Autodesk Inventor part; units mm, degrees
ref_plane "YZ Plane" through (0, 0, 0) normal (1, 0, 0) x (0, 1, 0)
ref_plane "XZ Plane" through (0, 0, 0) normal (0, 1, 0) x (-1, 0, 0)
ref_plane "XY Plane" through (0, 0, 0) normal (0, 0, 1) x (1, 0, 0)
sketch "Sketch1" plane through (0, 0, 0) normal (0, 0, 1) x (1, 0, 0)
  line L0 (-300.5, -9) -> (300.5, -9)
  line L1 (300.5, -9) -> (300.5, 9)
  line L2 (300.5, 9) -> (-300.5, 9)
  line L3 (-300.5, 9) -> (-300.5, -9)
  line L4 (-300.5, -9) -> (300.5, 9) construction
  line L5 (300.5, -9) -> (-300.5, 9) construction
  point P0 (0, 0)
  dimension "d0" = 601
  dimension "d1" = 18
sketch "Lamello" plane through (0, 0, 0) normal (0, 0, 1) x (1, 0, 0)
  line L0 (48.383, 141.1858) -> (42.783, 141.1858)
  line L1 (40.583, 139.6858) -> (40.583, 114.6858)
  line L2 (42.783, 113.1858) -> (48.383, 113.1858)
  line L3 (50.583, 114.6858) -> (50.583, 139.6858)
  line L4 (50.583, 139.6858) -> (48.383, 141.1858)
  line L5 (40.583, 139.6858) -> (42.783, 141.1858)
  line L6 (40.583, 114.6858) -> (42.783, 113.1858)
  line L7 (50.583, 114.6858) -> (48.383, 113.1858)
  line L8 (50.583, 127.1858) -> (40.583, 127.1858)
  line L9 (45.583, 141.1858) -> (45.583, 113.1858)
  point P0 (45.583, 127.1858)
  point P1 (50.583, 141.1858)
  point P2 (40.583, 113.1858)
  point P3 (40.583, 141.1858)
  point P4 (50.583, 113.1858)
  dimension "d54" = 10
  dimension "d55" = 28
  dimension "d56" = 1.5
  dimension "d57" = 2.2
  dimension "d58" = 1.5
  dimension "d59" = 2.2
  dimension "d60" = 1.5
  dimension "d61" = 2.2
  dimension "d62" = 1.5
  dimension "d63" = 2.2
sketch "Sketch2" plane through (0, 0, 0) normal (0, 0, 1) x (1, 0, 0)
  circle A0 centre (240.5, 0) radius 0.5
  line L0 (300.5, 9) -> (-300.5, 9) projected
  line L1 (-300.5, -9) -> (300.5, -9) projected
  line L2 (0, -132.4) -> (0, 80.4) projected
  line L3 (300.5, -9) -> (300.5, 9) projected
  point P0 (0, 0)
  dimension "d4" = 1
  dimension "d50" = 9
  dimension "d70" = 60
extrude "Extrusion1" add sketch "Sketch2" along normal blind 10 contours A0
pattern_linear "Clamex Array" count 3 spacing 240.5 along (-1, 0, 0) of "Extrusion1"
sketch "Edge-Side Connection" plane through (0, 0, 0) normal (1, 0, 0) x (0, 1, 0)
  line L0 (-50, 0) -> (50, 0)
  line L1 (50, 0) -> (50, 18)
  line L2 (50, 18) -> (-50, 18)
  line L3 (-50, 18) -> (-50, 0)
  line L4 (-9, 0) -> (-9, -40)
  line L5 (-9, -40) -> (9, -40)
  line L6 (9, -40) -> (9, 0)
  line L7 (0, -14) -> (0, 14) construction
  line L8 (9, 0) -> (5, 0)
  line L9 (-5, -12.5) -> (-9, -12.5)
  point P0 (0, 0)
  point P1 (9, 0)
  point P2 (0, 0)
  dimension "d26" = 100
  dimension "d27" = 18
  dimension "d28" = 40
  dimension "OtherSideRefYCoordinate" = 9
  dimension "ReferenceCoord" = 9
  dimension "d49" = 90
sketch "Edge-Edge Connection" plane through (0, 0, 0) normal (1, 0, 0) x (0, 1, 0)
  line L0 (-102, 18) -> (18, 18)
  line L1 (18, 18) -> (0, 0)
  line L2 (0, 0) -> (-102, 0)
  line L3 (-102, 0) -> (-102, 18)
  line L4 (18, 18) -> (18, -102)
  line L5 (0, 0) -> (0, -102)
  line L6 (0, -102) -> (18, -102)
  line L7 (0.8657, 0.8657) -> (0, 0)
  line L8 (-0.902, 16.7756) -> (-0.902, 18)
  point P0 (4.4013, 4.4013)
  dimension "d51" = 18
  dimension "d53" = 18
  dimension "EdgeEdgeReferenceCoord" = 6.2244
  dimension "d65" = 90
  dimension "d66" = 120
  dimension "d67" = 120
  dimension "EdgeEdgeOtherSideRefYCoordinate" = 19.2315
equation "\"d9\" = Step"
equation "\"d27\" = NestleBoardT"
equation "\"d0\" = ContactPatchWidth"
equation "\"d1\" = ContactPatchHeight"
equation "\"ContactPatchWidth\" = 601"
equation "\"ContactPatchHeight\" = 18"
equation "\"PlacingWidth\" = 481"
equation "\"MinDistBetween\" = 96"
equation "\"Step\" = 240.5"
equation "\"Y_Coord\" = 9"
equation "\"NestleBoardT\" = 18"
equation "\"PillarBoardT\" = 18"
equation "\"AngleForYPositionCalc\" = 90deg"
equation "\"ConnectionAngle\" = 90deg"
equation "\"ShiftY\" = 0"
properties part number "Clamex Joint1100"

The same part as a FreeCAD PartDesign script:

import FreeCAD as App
import Part
import Sketcher

V = App.Vector

doc = App.newDocument("Part")
params = doc.addObject("Spreadsheet::Sheet", "Params")
for row, (alias, value) in enumerate([
    ("sketch1_diameter", "1 mm"),
    ("pad1_length", "10 mm"),
    ("linearpattern_pitch", "240.5 mm"),
], start=1):
    params.set(f"A{row}", alias)
    params.set(f"B{row}", "=" + value)
    params.setAlias(f"B{row}", alias)

body = doc.addObject("PartDesign::Body", "Body")
body.AllowCompound = True

# Sketch on XY plane
sketch1 = body.newObject("Sketcher::SketchObject", "Sketch")
sketch1.AttachmentSupport = (doc.getObject("XY_Plane"), [""])
sketch1.MapMode = "FlatFace"
sketch1.addGeometry(Part.Circle(V(240.5, 0, 0), V(0, 0, 1), 0.5), False)
sketch1.addConstraint(Sketcher.Constraint("PointOnObject", 0, 3, -1))
sketch1.addConstraint(Sketcher.Constraint("Diameter", 0, 1.0))
sketch1.addConstraint(Sketcher.Constraint("DistanceX", -1, 1, 0, 3, 240.5))
sketch1.setExpression("Constraints[1]", "Params.sketch1_diameter")
pad1 = body.newObject("PartDesign::Pad", "Pad")
pad1.Profile = sketch1
pad1.setExpression("Length", "Params.pad1_length")
doc.recompute()

linearpattern = body.newObject("PartDesign::LinearPattern", "LinearPattern")
linearpattern.Originals = [pad1]
linearpattern.Direction = (doc.getObject("X_Axis"), [""])
linearpattern.Mode = "offset"
linearpattern.setExpression("Offset", "Params.linearpattern_pitch")
linearpattern.Occurrences = 3
linearpattern.Reversed = True
body.Tip = linearpattern

doc.recompute()
